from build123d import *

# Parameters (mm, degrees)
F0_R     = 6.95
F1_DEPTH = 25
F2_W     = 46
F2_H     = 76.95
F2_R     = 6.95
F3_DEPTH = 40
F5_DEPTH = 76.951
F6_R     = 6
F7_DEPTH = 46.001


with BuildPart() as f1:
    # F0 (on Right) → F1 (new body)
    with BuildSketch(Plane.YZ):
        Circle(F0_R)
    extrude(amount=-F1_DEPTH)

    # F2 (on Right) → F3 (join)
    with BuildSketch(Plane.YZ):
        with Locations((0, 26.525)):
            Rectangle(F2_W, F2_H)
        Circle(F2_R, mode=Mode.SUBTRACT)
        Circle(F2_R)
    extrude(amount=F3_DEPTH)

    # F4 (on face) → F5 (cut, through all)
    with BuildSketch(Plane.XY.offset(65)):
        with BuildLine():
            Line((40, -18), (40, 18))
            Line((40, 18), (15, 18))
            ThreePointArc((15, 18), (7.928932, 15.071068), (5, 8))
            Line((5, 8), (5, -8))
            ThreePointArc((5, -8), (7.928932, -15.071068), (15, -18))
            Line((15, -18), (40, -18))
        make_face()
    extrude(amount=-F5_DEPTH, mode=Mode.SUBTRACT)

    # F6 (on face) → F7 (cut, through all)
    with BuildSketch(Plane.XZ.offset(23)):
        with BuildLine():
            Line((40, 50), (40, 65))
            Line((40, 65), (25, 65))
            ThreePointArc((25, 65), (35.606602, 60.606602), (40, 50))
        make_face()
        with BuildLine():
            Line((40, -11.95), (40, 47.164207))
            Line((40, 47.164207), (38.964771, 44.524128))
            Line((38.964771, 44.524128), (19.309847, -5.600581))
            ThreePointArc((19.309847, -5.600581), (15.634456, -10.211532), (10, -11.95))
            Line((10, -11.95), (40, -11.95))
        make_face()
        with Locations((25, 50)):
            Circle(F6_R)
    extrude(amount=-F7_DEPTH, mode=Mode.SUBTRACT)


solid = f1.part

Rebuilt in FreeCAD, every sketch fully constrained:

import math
import FreeCAD as App
import Part
import Sketcher

V = App.Vector

doc = App.newDocument("Part")
body = doc.addObject("PartDesign::Body", "Body")

sketch1 = doc.addObject("Sketcher::SketchObject", "Sketch")
body.addObject(sketch1)
sketch1.AttachmentSupport = (doc.YZ_Plane, [""])
sketch1.MapMode = "FlatFace"
sketch1.addGeometry(Part.Circle(V(0, 0, 0), V(0, 0, 1), 6.95), False)
sketch1.addConstraint([
    Sketcher.Constraint("Coincident", 0, 3, -1, 1),
    Sketcher.Constraint("Diameter", 0, 13.9),
])
pad1 = doc.addObject("PartDesign::Pad", "Pad")
body.addObject(pad1)
pad1.Profile = sketch1
pad1.Length = 25
pad1.Reversed = True

sketch2 = doc.addObject("Sketcher::SketchObject", "Sketch001")
body.addObject(sketch2)
sketch2.AttachmentSupport = (doc.YZ_Plane, [""])
sketch2.MapMode = "FlatFace"
sketch2.addGeometry([
    Part.LineSegment(V(-23, 65, 0), V(-23, -11.95, 0)),
    Part.LineSegment(V(-23, -11.95, 0), V(23, -11.95, 0)),
    Part.LineSegment(V(23, -11.95, 0), V(23, 65, 0)),
    Part.LineSegment(V(23, 65, 0), V(-23, 65, 0)),
], False)
sketch2.addConstraint([
    Sketcher.Constraint("Coincident", 0, 2, 1, 1),
    Sketcher.Constraint("Coincident", 1, 2, 2, 1),
    Sketcher.Constraint("Coincident", 2, 2, 3, 1),
    Sketcher.Constraint("Coincident", 3, 2, 0, 1),
    Sketcher.Constraint("Vertical", 0),
    Sketcher.Constraint("Horizontal", 1),
    Sketcher.Constraint("Vertical", 2),
    Sketcher.Constraint("Horizontal", 3),
    Sketcher.Constraint("DistanceX", 1, 1, 1, 2, 46.0),
    Sketcher.Constraint("DistanceX", 0, 2, -1, 1, 23.0),
    Sketcher.Constraint("DistanceY", -1, 1, 2, 2, 65.0),
    Sketcher.Constraint("DistanceY", 0, 2, 0, 1, 76.95),
])
pad2 = doc.addObject("PartDesign::Pad", "Pad001")
body.addObject(pad2)
pad2.Profile = sketch2
pad2.Length = 40

sketch3 = doc.addObject("Sketcher::SketchObject", "Sketch002")
body.addObject(sketch3)
sketch3.AttachmentSupport = (doc.XY_Plane, [""])
sketch3.MapMode = "FlatFace"
sketch3.AttachmentOffset = App.Placement(V(0, 0, 65), App.Rotation())
sketch3.addGeometry([
    Part.LineSegment(V(40, -18, 0), V(40, 18, 0)),
    Part.LineSegment(V(40, 18, 0), V(15, 18, 0)),
    Part.ArcOfCircle(Part.Circle(V(14.999999, 8.000001, 0), V(0, 0, 1), 9.999999), math.radians(89.999996), math.radians(180.000004)),
    Part.LineSegment(V(5, 8, 0), V(5, -8, 0)),
    Part.ArcOfCircle(Part.Circle(V(14.999999, -8.000001, 0), V(0, 0, 1), 9.999999), math.radians(179.999996), math.radians(270.000004)),
    Part.LineSegment(V(15, -18, 0), V(40, -18, 0)),
], False)
sketch3.addConstraint([
    Sketcher.Constraint("Coincident", 0, 2, 1, 1),
    Sketcher.Constraint("Tangent", 1, 2, 2, 1),
    Sketcher.Constraint("Tangent", 2, 2, 3, 1),
    Sketcher.Constraint("Tangent", 3, 2, 4, 1),
    Sketcher.Constraint("Tangent", 4, 2, 5, 1),
    Sketcher.Constraint("Coincident", 5, 2, 0, 1),
    Sketcher.Constraint("Vertical", 0),
    Sketcher.Constraint("Horizontal", 1),
    Sketcher.Constraint("Vertical", 3),
    Sketcher.Constraint("Horizontal", 5),
    Sketcher.Constraint("Equal", 2, 4),
    Sketcher.Constraint("Radius", 2, 9.999999),
    Sketcher.Constraint("DistanceX", 1, 2, 1, 1, 25.0),
    Sketcher.Constraint("DistanceY", 0, 1, 0, 2, 36.0),
    Sketcher.Constraint("DistanceX", -1, 1, 2, 3, 14.999999),
    Sketcher.Constraint("DistanceY", -1, 1, 2, 3, 8.000001),
])
pocket1 = doc.addObject("PartDesign::Pocket", "Pocket")
body.addObject(pocket1)
pocket1.Profile = sketch3
pocket1.Type = "ThroughAll"

sketch4 = doc.addObject("Sketcher::SketchObject", "Sketch003")
body.addObject(sketch4)
sketch4.AttachmentSupport = (doc.XZ_Plane, [""])
sketch4.MapMode = "FlatFace"
sketch4.AttachmentOffset = App.Placement(V(0, 0, 23), App.Rotation())
sketch4.addGeometry([
    Part.LineSegment(V(40, 50, 0), V(40, 65, 0)),
    Part.LineSegment(V(40, 65, 0), V(25, 65, 0)),
    Part.ArcOfCircle(Part.Circle(V(25.000001, 50.000001, 0), V(0, 0, 1), 14.999999), math.radians(-0.000004), math.radians(90.000004)),
    Part.LineSegment(V(40, -11.95, 0), V(40, 47.164207, 0)),
    Part.LineSegment(V(40, 47.164207, 0), V(38.964771, 44.524128, 0)),
    Part.LineSegment(V(38.964771, 44.524128, 0), V(19.309847, -5.600581, 0)),
    Part.ArcOfCircle(Part.Circle(V(10.000001, -1.950002, 0), V(0, 0, 1), 9.999998), math.radians(-90.000007), math.radians(-21.411149)),
    Part.LineSegment(V(10, -11.95, 0), V(40, -11.95, 0)),
    Part.Circle(V(25, 50, 0), V(0, 0, 1), 6),
], False)
sketch4.addConstraint([
    Sketcher.Constraint("Coincident", 0, 2, 1, 1),
    Sketcher.Constraint("Tangent", 1, 2, 2, 2),
    Sketcher.Constraint("Tangent", 2, 1, 0, 1),
    Sketcher.Constraint("Coincident", 3, 2, 4, 1),
    Sketcher.Constraint("Coincident", 4, 2, 5, 1),
    Sketcher.Constraint("Tangent", 5, 2, 6, 2),
    Sketcher.Constraint("Tangent", 6, 1, 7, 1),
    Sketcher.Constraint("Coincident", 7, 2, 3, 1),
    Sketcher.Constraint("Vertical", 0),
    Sketcher.Constraint("Horizontal", 1),
    Sketcher.Constraint("Vertical", 3),
    Sketcher.Constraint("Horizontal", 7),
    Sketcher.Constraint("Coincident", 8, 3, 2, 3),
    Sketcher.Constraint("Parallel", 4, 5),
    Sketcher.Constraint("Vertical", 2, 1, 3, 2),
    Sketcher.Constraint("Diameter", 8, 12.0),
    Sketcher.Constraint("Radius", 2, 14.999999),
    Sketcher.Constraint("DistanceX", 7, 1, 7, 2, 30.0),
    Sketcher.Constraint("DistanceX", -1, 1, 2, 3, 25.000001),
    Sketcher.Constraint("DistanceY", -1, 1, 2, 3, 50.000001),
    Sketcher.Constraint("DistanceY", 6, 1, -1, 1, 11.95),
    Sketcher.Constraint("Radius", 6, 9.999998),
    Sketcher.Constraint("Distance", 4, 2.835792),
    Sketcher.Constraint("Distance", 5, 53.840528),
])
pocket2 = doc.addObject("PartDesign::Pocket", "Pocket001")
body.addObject(pocket2)
pocket2.Profile = sketch4
pocket2.Type = "ThroughAll"

doc.recompute()
